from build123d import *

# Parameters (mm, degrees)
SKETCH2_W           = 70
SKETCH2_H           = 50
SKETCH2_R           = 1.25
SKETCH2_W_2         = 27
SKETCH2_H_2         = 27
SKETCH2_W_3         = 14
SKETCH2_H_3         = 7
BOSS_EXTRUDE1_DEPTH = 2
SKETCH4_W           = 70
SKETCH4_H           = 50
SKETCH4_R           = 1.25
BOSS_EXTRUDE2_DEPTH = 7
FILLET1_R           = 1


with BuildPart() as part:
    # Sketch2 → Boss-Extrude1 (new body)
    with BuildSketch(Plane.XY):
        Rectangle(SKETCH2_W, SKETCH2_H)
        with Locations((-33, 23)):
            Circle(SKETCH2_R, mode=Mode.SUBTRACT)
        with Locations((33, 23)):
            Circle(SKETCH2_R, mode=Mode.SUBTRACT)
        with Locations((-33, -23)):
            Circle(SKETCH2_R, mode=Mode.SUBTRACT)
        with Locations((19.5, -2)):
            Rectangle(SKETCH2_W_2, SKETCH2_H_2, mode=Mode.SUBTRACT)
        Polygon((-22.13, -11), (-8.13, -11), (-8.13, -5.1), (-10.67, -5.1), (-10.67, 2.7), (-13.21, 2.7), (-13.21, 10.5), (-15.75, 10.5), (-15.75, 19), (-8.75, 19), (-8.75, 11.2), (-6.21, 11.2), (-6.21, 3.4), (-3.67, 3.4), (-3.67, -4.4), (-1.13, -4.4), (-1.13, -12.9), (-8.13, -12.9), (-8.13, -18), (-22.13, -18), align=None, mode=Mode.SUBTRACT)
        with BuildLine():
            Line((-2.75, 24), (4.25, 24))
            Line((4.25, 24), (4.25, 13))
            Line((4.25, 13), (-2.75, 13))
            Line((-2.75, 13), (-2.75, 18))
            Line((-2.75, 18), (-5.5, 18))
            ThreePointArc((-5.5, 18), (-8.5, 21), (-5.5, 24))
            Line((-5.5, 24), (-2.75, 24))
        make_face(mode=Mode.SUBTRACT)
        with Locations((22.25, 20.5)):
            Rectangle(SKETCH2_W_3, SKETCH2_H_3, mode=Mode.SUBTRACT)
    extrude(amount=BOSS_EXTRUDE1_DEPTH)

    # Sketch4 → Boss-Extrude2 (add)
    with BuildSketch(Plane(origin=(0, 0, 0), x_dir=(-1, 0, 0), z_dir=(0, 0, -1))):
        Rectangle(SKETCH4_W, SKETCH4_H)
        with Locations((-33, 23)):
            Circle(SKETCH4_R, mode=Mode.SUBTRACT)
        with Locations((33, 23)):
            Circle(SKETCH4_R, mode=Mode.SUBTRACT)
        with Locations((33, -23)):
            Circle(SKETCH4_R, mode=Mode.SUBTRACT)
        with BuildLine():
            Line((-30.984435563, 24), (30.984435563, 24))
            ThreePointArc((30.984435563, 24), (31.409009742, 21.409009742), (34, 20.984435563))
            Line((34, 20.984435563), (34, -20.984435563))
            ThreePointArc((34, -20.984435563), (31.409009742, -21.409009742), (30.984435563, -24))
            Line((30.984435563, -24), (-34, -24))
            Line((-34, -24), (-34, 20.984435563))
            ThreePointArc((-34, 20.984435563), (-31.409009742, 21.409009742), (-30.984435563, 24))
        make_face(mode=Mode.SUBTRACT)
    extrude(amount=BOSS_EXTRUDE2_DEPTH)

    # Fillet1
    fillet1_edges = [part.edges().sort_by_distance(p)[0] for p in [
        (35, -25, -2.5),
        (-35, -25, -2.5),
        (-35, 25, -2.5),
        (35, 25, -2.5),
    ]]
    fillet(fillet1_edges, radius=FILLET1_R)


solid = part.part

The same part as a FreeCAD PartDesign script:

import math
import FreeCAD as App
import Part
import Sketcher
from FreeCAD import Vector


def edges_at(feature, points):
    """Names of the edges that pass closest to the given points."""
    edges = feature.Shape.Edges
    near = lambda p: min(range(len(edges)), key=lambda i: edges[i].distToShape(Part.Vertex(*p))[0])
    return sorted({f"Edge{near(p) + 1}" for p in points})

doc = App.newDocument("Part")
params = doc.addObject("Spreadsheet::Sheet", "Params")
for row, (alias, value) in enumerate([
    ("sketch1_radius", "3 mm"),
    ("sketch1_diameter", "2.5 mm"),
    ("sketch1_width", "70 mm"),
    ("sketch1_width2", "27 mm"),
    ("sketch1_width3", "14 mm"),
    ("pad1_length", "2 mm"),
    ("sketch2_diameter", "2.5 mm"),
    ("sketch2_width", "70 mm"),
    ("sketch2_height", "50 mm"),
    ("sketch2_radius", "2.25 mm"),
    ("pad2_length", "7 mm"),
    ("fillet_radius", "1 mm"),
], start=1):
    params.set(f"A{row}", alias)
    params.set(f"B{row}", "=" + value)
    params.setAlias(f"B{row}", alias)

body = doc.addObject("PartDesign::Body", "Body")

# Sketch on XY plane
sketch1 = body.newObject("Sketcher::SketchObject", "Sketch")
sketch1.AttachmentSupport = (doc.getObject("XY_Plane"), [""])
sketch1.MapMode = "FlatFace"
sketch1.addGeometry(Part.LineSegment(Vector(-35, 25, 0), Vector(-35, -25, 0)), False)
sketch1.addGeometry(Part.LineSegment(Vector(-35, -25, 0), Vector(35, -25, 0)), False)
sketch1.addGeometry(Part.LineSegment(Vector(35, -25, 0), Vector(35, 25, 0)), False)
sketch1.addGeometry(Part.LineSegment(Vector(35, 25, 0), Vector(-35, 25, 0)), False)
sketch1.addGeometry(Part.Circle(Vector(-33, -23, 0), Vector(0, 0, 1), 1.2), False)
sketch1.addGeometry(Part.LineSegment(Vector(33, -15.5, 0), Vector(6, -15.5, 0)), False)
sketch1.addGeometry(Part.LineSegment(Vector(6, -15.5, 0), Vector(6, 11.5, 0)), False)
sketch1.addGeometry(Part.LineSegment(Vector(6, 11.5, 0), Vector(33, 11.5, 0)), False)
sketch1.addGeometry(Part.LineSegment(Vector(33, 11.5, 0), Vector(33, -15.5, 0)), False)
sketch1.addGeometry(Part.LineSegment(Vector(-22.1, -18, 0), Vector(-22.1, -11, 0)), False)
sketch1.addGeometry(Part.LineSegment(Vector(-22.1, -11, 0), Vector(-8.1, -11, 0)), False)
sketch1.addGeometry(Part.LineSegment(Vector(-8.1, -11, 0), Vector(-8.1, -5.1, 0)), False)
sketch1.addGeometry(Part.LineSegment(Vector(-8.1, -5.1, 0), Vector(-10.7, -5.1, 0)), False)
sketch1.addGeometry(Part.LineSegment(Vector(-10.7, -5.1, 0), Vector(-10.7, 2.7, 0)), False)
sketch1.addGeometry(Part.LineSegment(Vector(-10.7, 2.7, 0), Vector(-13.2, 2.7, 0)), False)
sketch1.addGeometry(Part.LineSegment(Vector(-13.2, 2.7, 0), Vector(-13.2, 10.5, 0)), False)
sketch1.addGeometry(Part.LineSegment(Vector(-13.2, 10.5, 0), Vector(-15.8, 10.5, 0)), False)
sketch1.addGeometry(Part.LineSegment(Vector(-15.8, 10.5, 0), Vector(-15.8, 19, 0)), False)
sketch1.addGeometry(Part.LineSegment(Vector(-15.8, 19, 0), Vector(-8.8, 19, 0)), False)
sketch1.addGeometry(Part.LineSegment(Vector(-8.8, 19, 0), Vector(-8.8, 11.2, 0)), False)
sketch1.addGeometry(Part.LineSegment(Vector(-8.8, 11.2, 0), Vector(-6.2, 11.2, 0)), False)
sketch1.addGeometry(Part.LineSegment(Vector(-6.2, 11.2, 0), Vector(-6.2, 3.4, 0)), False)
sketch1.addGeometry(Part.LineSegment(Vector(-6.2, 3.4, 0), Vector(-3.7, 3.4, 0)), False)
sketch1.addGeometry(Part.LineSegment(Vector(-3.7, 3.4, 0), Vector(-3.7, -4.4, 0)), False)
sketch1.addGeometry(Part.LineSegment(Vector(-3.7, -4.4, 0), Vector(-1.1, -4.4, 0)), False)
sketch1.addGeometry(Part.LineSegment(Vector(-1.1, -4.4, 0), Vector(-1.1, -12.9, 0)), False)
sketch1.addGeometry(Part.LineSegment(Vector(-1.1, -12.9, 0), Vector(-8.1, -12.9, 0)), False)
sketch1.addGeometry(Part.LineSegment(Vector(-8.1, -12.9, 0), Vector(-8.1, -18, 0)), False)
sketch1.addGeometry(Part.LineSegment(Vector(-8.1, -18, 0), Vector(-22.1, -18, 0)), False)
sketch1.addGeometry(Part.Circle(Vector(-33, 23, 0), Vector(0, 0, 1), 1.2), False)
sketch1.addGeometry(Part.LineSegment(Vector(-5.5, 24, 0), Vector(4.2, 24, 0)), False)
sketch1.addGeometry(Part.LineSegment(Vector(4.2, 24, 0), Vector(4.2, 13, 0)), False)
sketch1.addGeometry(Part.LineSegment(Vector(4.2, 13, 0), Vector(-2.8, 13, 0)), False)
sketch1.addGeometry(Part.LineSegment(Vector(-2.8, 13, 0), Vector(-2.8, 18, 0)), False)
sketch1.addGeometry(Part.LineSegment(Vector(-2.8, 18, 0), Vector(-5.5, 18, 0)), False)
sketch1.addGeometry(Part.ArcOfCircle(Part.Circle(Vector(-5.5, 21, 0), Vector(0, 0, 1), 3), math.radians(90), math.radians(270)), False)
sketch1.addGeometry(Part.LineSegment(Vector(29.2, 17, 0), Vector(15.2, 17, 0)), False)
sketch1.addGeometry(Part.LineSegment(Vector(15.2, 17, 0), Vector(15.2, 24, 0)), False)
sketch1.addGeometry(Part.LineSegment(Vector(15.2, 24, 0), Vector(29.2, 24, 0)), False)
sketch1.addGeometry(Part.LineSegment(Vector(29.2, 24, 0), Vector(29.2, 17, 0)), False)
sketch1.addGeometry(Part.Circle(Vector(33, 23, 0), Vector(0, 0, 1), 1.2), False)
sketch1.addConstraint(Sketcher.Constraint("Coincident", 0, 2, 1, 1))
sketch1.addConstraint(Sketcher.Constraint("Coincident", 1, 2, 2, 1))
sketch1.addConstraint(Sketcher.Constraint("Coincident", 2, 2, 3, 1))
sketch1.addConstraint(Sketcher.Constraint("Coincident", 3, 2, 0, 1))
sketch1.addConstraint(Sketcher.Constraint("Coincident", 5, 2, 6, 1))
sketch1.addConstraint(Sketcher.Constraint("Coincident", 6, 2, 7, 1))
sketch1.addConstraint(Sketcher.Constraint("Coincident", 7, 2, 8, 1))
sketch1.addConstraint(Sketcher.Constraint("Coincident", 8, 2, 5, 1))
sketch1.addConstraint(Sketcher.Constraint("Coincident", 9, 2, 10, 1))
sketch1.addConstraint(Sketcher.Constraint("Coincident", 10, 2, 11, 1))
sketch1.addConstraint(Sketcher.Constraint("Coincident", 11, 2, 12, 1))
sketch1.addConstraint(Sketcher.Constraint("Coincident", 12, 2, 13, 1))
sketch1.addConstraint(Sketcher.Constraint("Coincident", 13, 2, 14, 1))
sketch1.addConstraint(Sketcher.Constraint("Coincident", 14, 2, 15, 1))
sketch1.addConstraint(Sketcher.Constraint("Coincident", 15, 2, 16, 1))
sketch1.addConstraint(Sketcher.Constraint("Coincident", 16, 2, 17, 1))
sketch1.addConstraint(Sketcher.Constraint("Coincident", 17, 2, 18, 1))
sketch1.addConstraint(Sketcher.Constraint("Coincident", 18, 2, 19, 1))
sketch1.addConstraint(Sketcher.Constraint("Coincident", 19, 2, 20, 1))
sketch1.addConstraint(Sketcher.Constraint("Coincident", 20, 2, 21, 1))
sketch1.addConstraint(Sketcher.Constraint("Coincident", 21, 2, 22, 1))
sketch1.addConstraint(Sketcher.Constraint("Coincident", 22, 2, 23, 1))
sketch1.addConstraint(Sketcher.Constraint("Coincident", 23, 2, 24, 1))
sketch1.addConstraint(Sketcher.Constraint("Coincident", 24, 2, 25, 1))
sketch1.addConstraint(Sketcher.Constraint("Coincident", 25, 2, 26, 1))
sketch1.addConstraint(Sketcher.Constraint("Coincident", 26, 2, 27, 1))
sketch1.addConstraint(Sketcher.Constraint("Coincident", 27, 2, 28, 1))
sketch1.addConstraint(Sketcher.Constraint("Coincident", 28, 2, 9, 1))
sketch1.addConstraint(Sketcher.Constraint("Coincident", 30, 2, 31, 1))
sketch1.addConstraint(Sketcher.Constraint("Coincident", 31, 2, 32, 1))
sketch1.addConstraint(Sketcher.Constraint("Coincident", 32, 2, 33, 1))
sketch1.addConstraint(Sketcher.Constraint("Coincident", 33, 2, 34, 1))
sketch1.addConstraint(Sketcher.Constraint("Tangent", 34, 2, 35, 2))
sketch1.addConstraint(Sketcher.Constraint("Tangent", 35, 1, 30, 1))
sketch1.addConstraint(Sketcher.Constraint("Coincident", 36, 2, 37, 1))
sketch1.addConstraint(Sketcher.Constraint("Coincident", 37, 2, 38, 1))
sketch1.addConstraint(Sketcher.Constraint("Coincident", 38, 2, 39, 1))
sketch1.addConstraint(Sketcher.Constraint("Coincident", 39, 2, 36, 1))
sketch1.addConstraint(Sketcher.Constraint("Vertical", 0))
sketch1.addConstraint(Sketcher.Constraint("Horizontal", 1))
sketch1.addConstraint(Sketcher.Constraint("Vertical", 2))
sketch1.addConstraint(Sketcher.Constraint("Horizontal", 3))
sketch1.addConstraint(Sketcher.Constraint("Horizontal", 5))
sketch1.addConstraint(Sketcher.Constraint("Vertical", 6))
sketch1.addConstraint(Sketcher.Constraint("Horizontal", 7))
sketch1.addConstraint(Sketcher.Constraint("Vertical", 8))
sketch1.addConstraint(Sketcher.Constraint("Vertical", 9))
sketch1.addConstraint(Sketcher.Constraint("Horizontal", 10))
sketch1.addConstraint(Sketcher.Constraint("Vertical", 11))
sketch1.addConstraint(Sketcher.Constraint("Horizontal", 12))
sketch1.addConstraint(Sketcher.Constraint("Vertical", 13))
sketch1.addConstraint(Sketcher.Constraint("Horizontal", 14))
sketch1.addConstraint(Sketcher.Constraint("Vertical", 15))
sketch1.addConstraint(Sketcher.Constraint("Horizontal", 16))
sketch1.addConstraint(Sketcher.Constraint("Vertical", 17))
sketch1.addConstraint(Sketcher.Constraint("Horizontal", 18))
sketch1.addConstraint(Sketcher.Constraint("Vertical", 19))
sketch1.addConstraint(Sketcher.Constraint("Horizontal", 20))
sketch1.addConstraint(Sketcher.Constraint("Vertical", 21))
sketch1.addConstraint(Sketcher.Constraint("Horizontal", 22))
sketch1.addConstraint(Sketcher.Constraint("Vertical", 23))
sketch1.addConstraint(Sketcher.Constraint("Horizontal", 24))
sketch1.addConstraint(Sketcher.Constraint("Vertical", 25))
sketch1.addConstraint(Sketcher.Constraint("Horizontal", 26))
sketch1.addConstraint(Sketcher.Constraint("Vertical", 27))
sketch1.addConstraint(Sketcher.Constraint("Horizontal", 28))
sketch1.addConstraint(Sketcher.Constraint("Horizontal", 30))
sketch1.addConstraint(Sketcher.Constraint("Vertical", 31))
sketch1.addConstraint(Sketcher.Constraint("Horizontal", 32))
sketch1.addConstraint(Sketcher.Constraint("Vertical", 33))
sketch1.addConstraint(Sketcher.Constraint("Horizontal", 34))
sketch1.addConstraint(Sketcher.Constraint("Horizontal", 36))
sketch1.addConstraint(Sketcher.Constraint("Vertical", 37))
sketch1.addConstraint(Sketcher.Constraint("Horizontal", 38))
sketch1.addConstraint(Sketcher.Constraint("Vertical", 39))
sketch1.addConstraint(Sketcher.Constraint("Equal", 4, 29))
sketch1.addConstraint(Sketcher.Constraint("Equal", 29, 40))
sketch1.addConstraint(Sketcher.Constraint("Symmetric", 4, 3, 40, 3, -1, 1))
sketch1.addConstraint(Sketcher.Constraint("Symmetric", 0, 2, 2, 2, -1, 1))
sketch1.addConstraint(Sketcher.Constraint("Symmetric", 29, 3, 40, 3, -2))
sketch1.addConstraint(Sketcher.Constraint("Horizontal", 35, 1, 37, 2))
sketch1.addConstraint(Sketcher.Constraint("Vertical", 40, 3, 7, 2))
sketch1.addConstraint(Sketcher.Constraint("Vertical", 11, 2, 26, 2))
sketch1.addConstraint(Sketcher.Constraint("Equal", 12, 14))
sketch1.addConstraint(Sketcher.Constraint("Equal", 14, 16))
sketch1.addConstraint(Sketcher.Constraint("Equal", 16, 20))
sketch1.addConstraint(Sketcher.Constraint("Equal", 20, 22))
sketch1.addConstraint(Sketcher.Constraint("Equal", 22, 24))
sketch1.addConstraint(Sketcher.Constraint("Equal", 26, 32))
sketch1.addConstraint(Sketcher.Constraint("Equal", 28, 36))
sketch1.addConstraint(Sketcher.Constraint("Equal", 7, 6))
sketch1.addConstraint(Sketcher.Constraint("Equal", 32, 9))
sketch1.addConstraint(Sketcher.Constraint("Equal", 13, 15))
sketch1.addConstraint(Sketcher.Constraint("Equal", 15, 19))
sketch1.addConstraint(Sketcher.Constraint("Equal", 19, 21))
sketch1.addConstraint(Sketcher.Constraint("Equal", 21, 23))
sketch1.addConstraint(Sketcher.Constraint("Equal", 17, 25))
sketch1.addConstraint(Sketcher.Constraint("Equal", 9, 37))
sketch1.addConstraint(Sketcher.Constraint("Radius", 35, 3.0))
sketch1.addConstraint(Sketcher.Constraint("Diameter", 4, 2.5))
sketch1.addConstraint(Sketcher.Constraint("DistanceX", 1, 1, 1, 2, 70.0))
sketch1.addConstraint(Sketcher.Constraint("DistanceX", 5, 2, 5, 1, 27.0))
sketch1.addConstraint(Sketcher.Constraint("DistanceX", 10, 1, 10, 2, 14.0))
sketch1.addConstraint(Sketcher.Constraint("DistanceX", 18, 1, 18, 2, 7.0))
sketch1.addConstraint(Sketcher.Constraint("DistanceY", 0, 2, 0, 1, 50.0))
sketch1.addConstraint(Sketcher.Constraint("DistanceY", 31, 2, 31, 1, 11.0))
sketch1.addConstraint(Sketcher.Constraint("DistanceY", 11, 1, 11, 2, 5.9))
sketch1.addConstraint(Sketcher.Constraint("DistanceY", 13, 1, 13, 2, 7.8))
sketch1.addConstraint(Sketcher.Constraint("DistanceY", 17, 1, 17, 2, 8.5))
sketch1.addConstraint(Sketcher.Constraint("DistanceX", 4, 3, -1, 1, 33.0))
sketch1.addConstraint(Sketcher.Constraint("DistanceY", 4, 3, -1, 1, 23.0))
sketch1.addConstraint(Sketcher.Constraint("DistanceY", -1, 1, 35, 3, 21.0))
sketch1.addConstraint(Sketcher.Constraint("DistanceY", 9, 2, -1, 1, 11.0))
sketch1.addConstraint(Sketcher.Constraint("DistanceX", 18, 2, 30, 2, 13.0))
sketch1.addConstraint(Sketcher.Constraint("DistanceX", 31, 2, 36, 2, 11.0))
sketch1.addConstraint(Sketcher.Constraint("DistanceX", 12, 2, 12, 1, 2.54))
sketch1.addConstraint(Sketcher.Constraint("DistanceX", 30, 1, 30, 2, 9.75))
sketch1.addConstraint(Sketcher.Constraint("DistanceX", 35, 3, -1, 1, 5.5))
sketch1.addConstraint(Sketcher.Constraint("DistanceY", 5, 2, -1, 1, 15.5))
sketch1.setExpression("Constraints[98]", "Params.sketch1_radius")
sketch1.setExpression("Constraints[99]", "Params.sketch1_diameter")
sketch1.setExpression("Constraints[100]", "Params.sketch1_width")
sketch1.setExpression("Constraints[101]", "Params.sketch1_width2")
sketch1.setExpression("Constraints[102]", "Params.sketch1_width3")
pad1 = body.newObject("PartDesign::Pad", "Pad")
pad1.Profile = sketch1
pad1.setExpression("Length", "Params.pad1_length")

# Sketch on XY plane
sketch2 = body.newObject("Sketcher::SketchObject", "Sketch001")
sketch2.AttachmentSupport = (doc.getObject("XY_Plane"), [""])
sketch2.MapMode = "FlatFace"
sketch2.addGeometry(Part.LineSegment(Vector(35, 25, 0), Vector(35, -25, 0)), False)
sketch2.addGeometry(Part.LineSegment(Vector(35, -25, 0), Vector(-35, -25, 0)), False)
sketch2.addGeometry(Part.LineSegment(Vector(-35, -25, 0), Vector(-35, 25, 0)), False)
sketch2.addGeometry(Part.LineSegment(Vector(-35, 25, 0), Vector(35, 25, 0)), False)
sketch2.addGeometry(Part.Circle(Vector(-33, -23, 0), Vector(0, 0, 1), 1.2), False)
sketch2.addGeometry(Part.Circle(Vector(33, 23, 0), Vector(0, 0, 1), 1.2), False)
sketch2.addGeometry(Part.ArcOfCircle(Part.Circle(Vector(33, 23, 0), Vector(0, 0, 1), 2.2), math.radians(154), math.radians(296)), False)
sketch2.addGeometry(Part.LineSegment(Vector(31, 24, 0), Vector(-31, 24, 0)), False)
sketch2.addGeometry(Part.ArcOfCircle(Part.Circle(Vector(-33, 23, 0), Vector(0, 0, 1), 2.2), math.radians(-116), math.radians(26)), False)
sketch2.addGeometry(Part.LineSegment(Vector(-34, 21, 0), Vector(-34, -21, 0)), False)
sketch2.addGeometry(Part.ArcOfCircle(Part.Circle(Vector(-33, -23, 0), Vector(0, 0, 1), 2.2), math.radians(-26), math.radians(116)), False)
sketch2.addGeometry(Part.LineSegment(Vector(-31, -24, 0), Vector(34, -24, 0)), False)
sketch2.addGeometry(Part.LineSegment(Vector(34, -24, 0), Vector(34, 21, 0)), False)
sketch2.addGeometry(Part.Circle(Vector(-33, 23, 0), Vector(0, 0, 1), 1.2), False)
sketch2.addConstraint(Sketcher.Constraint("Coincident", 0, 2, 1, 1))
sketch2.addConstraint(Sketcher.Constraint("Coincident", 1, 2, 2, 1))
sketch2.addConstraint(Sketcher.Constraint("Coincident", 2, 2, 3, 1))
sketch2.addConstraint(Sketcher.Constraint("Coincident", 3, 2, 0, 1))
sketch2.addConstraint(Sketcher.Constraint("Coincident", 6, 1, 7, 1))
sketch2.addConstraint(Sketcher.Constraint("Coincident", 7, 2, 8, 2))
sketch2.addConstraint(Sketcher.Constraint("Coincident", 8, 1, 9, 1))
sketch2.addConstraint(Sketcher.Constraint("Coincident", 9, 2, 10, 2))
sketch2.addConstraint(Sketcher.Constraint("Coincident", 10, 1, 11, 1))
sketch2.addConstraint(Sketcher.Constraint("Coincident", 11, 2, 12, 1))
sketch2.addConstraint(Sketcher.Constraint("Coincident", 12, 2, 6, 2))
sketch2.addConstraint(Sketcher.Constraint("Vertical", 0))
sketch2.addConstraint(Sketcher.Constraint("Horizontal", 1))
sketch2.addConstraint(Sketcher.Constraint("Vertical", 2))
sketch2.addConstraint(Sketcher.Constraint("Horizontal", 3))
sketch2.addConstraint(Sketcher.Constraint("Horizontal", 7))
sketch2.addConstraint(Sketcher.Constraint("Vertical", 9))
sketch2.addConstraint(Sketcher.Constraint("Horizontal", 11))
sketch2.addConstraint(Sketcher.Constraint("Vertical", 12))
sketch2.addConstraint(Sketcher.Constraint("Coincident", 6, 3, 5, 3))
sketch2.addConstraint(Sketcher.Constraint("Coincident", 10, 3, 4, 3))
sketch2.addConstraint(Sketcher.Constraint("Coincident", 13, 3, 8, 3))
sketch2.addConstraint(Sketcher.Constraint("Equal", 4, 5))
sketch2.addConstraint(Sketcher.Constraint("Equal", 6, 8))
sketch2.addConstraint(Sketcher.Constraint("Equal", 8, 10))
sketch2.addConstraint(Sketcher.Constraint("Equal", 5, 13))
sketch2.addConstraint(Sketcher.Constraint("Symmetric", 4, 3, 5, 3, -1, 1))
sketch2.addConstraint(Sketcher.Constraint("Symmetric", 0, 2, 2, 2, -1, 1))
sketch2.addConstraint(Sketcher.Constraint("Symmetric", 5, 3, 8, 3, -2))
sketch2.addConstraint(Sketcher.Constraint("Horizontal", 8, 1, 12, 2))
sketch2.addConstraint(Sketcher.Constraint("Vertical", 7, 2, 10, 1))
sketch2.addConstraint(Sketcher.Constraint("Diameter", 4, 2.5))
sketch2.addConstraint(Sketcher.Constraint("DistanceX", 1, 2, 1, 1, 70.0))
sketch2.addConstraint(Sketcher.Constraint("DistanceY", 0, 2, 0, 1, 50.0))
sketch2.addConstraint(Sketcher.Constraint("Radius", 6, 2.25))
sketch2.addConstraint(Sketcher.Constraint("DistanceX", 4, 3, -1, 1, 33.0))
sketch2.addConstraint(Sketcher.Constraint("DistanceY", 4, 3, -1, 1, 23.0))
sketch2.addConstraint(Sketcher.Constraint("DistanceY", -1, 1, 6, 1, 24.0))
sketch2.addConstraint(Sketcher.Constraint("DistanceX", 8, 1, -1, 1, 34.0))
sketch2.setExpression("Constraints[31]", "Params.sketch2_diameter")
sketch2.setExpression("Constraints[32]", "Params.sketch2_width")
sketch2.setExpression("Constraints[33]", "Params.sketch2_height")
sketch2.setExpression("Constraints[34]", "Params.sketch2_radius")
pad2 = body.newObject("PartDesign::Pad", "Pad001")
pad2.Profile = sketch2
pad2.setExpression("Length", "Params.pad2_length")
pad2.Reversed = True
doc.recompute()

fillet = body.newObject("PartDesign::Fillet", "Fillet")
fillet.Base = (pad2, edges_at(pad2, [
    (35, -25, -2.5),
    (-35, -25, -2.5),
    (-35, 25, -2.5),
    (35, 25, -2.5),
]))
fillet.setExpression("Radius", "Params.fillet_radius")

doc.recompute()
